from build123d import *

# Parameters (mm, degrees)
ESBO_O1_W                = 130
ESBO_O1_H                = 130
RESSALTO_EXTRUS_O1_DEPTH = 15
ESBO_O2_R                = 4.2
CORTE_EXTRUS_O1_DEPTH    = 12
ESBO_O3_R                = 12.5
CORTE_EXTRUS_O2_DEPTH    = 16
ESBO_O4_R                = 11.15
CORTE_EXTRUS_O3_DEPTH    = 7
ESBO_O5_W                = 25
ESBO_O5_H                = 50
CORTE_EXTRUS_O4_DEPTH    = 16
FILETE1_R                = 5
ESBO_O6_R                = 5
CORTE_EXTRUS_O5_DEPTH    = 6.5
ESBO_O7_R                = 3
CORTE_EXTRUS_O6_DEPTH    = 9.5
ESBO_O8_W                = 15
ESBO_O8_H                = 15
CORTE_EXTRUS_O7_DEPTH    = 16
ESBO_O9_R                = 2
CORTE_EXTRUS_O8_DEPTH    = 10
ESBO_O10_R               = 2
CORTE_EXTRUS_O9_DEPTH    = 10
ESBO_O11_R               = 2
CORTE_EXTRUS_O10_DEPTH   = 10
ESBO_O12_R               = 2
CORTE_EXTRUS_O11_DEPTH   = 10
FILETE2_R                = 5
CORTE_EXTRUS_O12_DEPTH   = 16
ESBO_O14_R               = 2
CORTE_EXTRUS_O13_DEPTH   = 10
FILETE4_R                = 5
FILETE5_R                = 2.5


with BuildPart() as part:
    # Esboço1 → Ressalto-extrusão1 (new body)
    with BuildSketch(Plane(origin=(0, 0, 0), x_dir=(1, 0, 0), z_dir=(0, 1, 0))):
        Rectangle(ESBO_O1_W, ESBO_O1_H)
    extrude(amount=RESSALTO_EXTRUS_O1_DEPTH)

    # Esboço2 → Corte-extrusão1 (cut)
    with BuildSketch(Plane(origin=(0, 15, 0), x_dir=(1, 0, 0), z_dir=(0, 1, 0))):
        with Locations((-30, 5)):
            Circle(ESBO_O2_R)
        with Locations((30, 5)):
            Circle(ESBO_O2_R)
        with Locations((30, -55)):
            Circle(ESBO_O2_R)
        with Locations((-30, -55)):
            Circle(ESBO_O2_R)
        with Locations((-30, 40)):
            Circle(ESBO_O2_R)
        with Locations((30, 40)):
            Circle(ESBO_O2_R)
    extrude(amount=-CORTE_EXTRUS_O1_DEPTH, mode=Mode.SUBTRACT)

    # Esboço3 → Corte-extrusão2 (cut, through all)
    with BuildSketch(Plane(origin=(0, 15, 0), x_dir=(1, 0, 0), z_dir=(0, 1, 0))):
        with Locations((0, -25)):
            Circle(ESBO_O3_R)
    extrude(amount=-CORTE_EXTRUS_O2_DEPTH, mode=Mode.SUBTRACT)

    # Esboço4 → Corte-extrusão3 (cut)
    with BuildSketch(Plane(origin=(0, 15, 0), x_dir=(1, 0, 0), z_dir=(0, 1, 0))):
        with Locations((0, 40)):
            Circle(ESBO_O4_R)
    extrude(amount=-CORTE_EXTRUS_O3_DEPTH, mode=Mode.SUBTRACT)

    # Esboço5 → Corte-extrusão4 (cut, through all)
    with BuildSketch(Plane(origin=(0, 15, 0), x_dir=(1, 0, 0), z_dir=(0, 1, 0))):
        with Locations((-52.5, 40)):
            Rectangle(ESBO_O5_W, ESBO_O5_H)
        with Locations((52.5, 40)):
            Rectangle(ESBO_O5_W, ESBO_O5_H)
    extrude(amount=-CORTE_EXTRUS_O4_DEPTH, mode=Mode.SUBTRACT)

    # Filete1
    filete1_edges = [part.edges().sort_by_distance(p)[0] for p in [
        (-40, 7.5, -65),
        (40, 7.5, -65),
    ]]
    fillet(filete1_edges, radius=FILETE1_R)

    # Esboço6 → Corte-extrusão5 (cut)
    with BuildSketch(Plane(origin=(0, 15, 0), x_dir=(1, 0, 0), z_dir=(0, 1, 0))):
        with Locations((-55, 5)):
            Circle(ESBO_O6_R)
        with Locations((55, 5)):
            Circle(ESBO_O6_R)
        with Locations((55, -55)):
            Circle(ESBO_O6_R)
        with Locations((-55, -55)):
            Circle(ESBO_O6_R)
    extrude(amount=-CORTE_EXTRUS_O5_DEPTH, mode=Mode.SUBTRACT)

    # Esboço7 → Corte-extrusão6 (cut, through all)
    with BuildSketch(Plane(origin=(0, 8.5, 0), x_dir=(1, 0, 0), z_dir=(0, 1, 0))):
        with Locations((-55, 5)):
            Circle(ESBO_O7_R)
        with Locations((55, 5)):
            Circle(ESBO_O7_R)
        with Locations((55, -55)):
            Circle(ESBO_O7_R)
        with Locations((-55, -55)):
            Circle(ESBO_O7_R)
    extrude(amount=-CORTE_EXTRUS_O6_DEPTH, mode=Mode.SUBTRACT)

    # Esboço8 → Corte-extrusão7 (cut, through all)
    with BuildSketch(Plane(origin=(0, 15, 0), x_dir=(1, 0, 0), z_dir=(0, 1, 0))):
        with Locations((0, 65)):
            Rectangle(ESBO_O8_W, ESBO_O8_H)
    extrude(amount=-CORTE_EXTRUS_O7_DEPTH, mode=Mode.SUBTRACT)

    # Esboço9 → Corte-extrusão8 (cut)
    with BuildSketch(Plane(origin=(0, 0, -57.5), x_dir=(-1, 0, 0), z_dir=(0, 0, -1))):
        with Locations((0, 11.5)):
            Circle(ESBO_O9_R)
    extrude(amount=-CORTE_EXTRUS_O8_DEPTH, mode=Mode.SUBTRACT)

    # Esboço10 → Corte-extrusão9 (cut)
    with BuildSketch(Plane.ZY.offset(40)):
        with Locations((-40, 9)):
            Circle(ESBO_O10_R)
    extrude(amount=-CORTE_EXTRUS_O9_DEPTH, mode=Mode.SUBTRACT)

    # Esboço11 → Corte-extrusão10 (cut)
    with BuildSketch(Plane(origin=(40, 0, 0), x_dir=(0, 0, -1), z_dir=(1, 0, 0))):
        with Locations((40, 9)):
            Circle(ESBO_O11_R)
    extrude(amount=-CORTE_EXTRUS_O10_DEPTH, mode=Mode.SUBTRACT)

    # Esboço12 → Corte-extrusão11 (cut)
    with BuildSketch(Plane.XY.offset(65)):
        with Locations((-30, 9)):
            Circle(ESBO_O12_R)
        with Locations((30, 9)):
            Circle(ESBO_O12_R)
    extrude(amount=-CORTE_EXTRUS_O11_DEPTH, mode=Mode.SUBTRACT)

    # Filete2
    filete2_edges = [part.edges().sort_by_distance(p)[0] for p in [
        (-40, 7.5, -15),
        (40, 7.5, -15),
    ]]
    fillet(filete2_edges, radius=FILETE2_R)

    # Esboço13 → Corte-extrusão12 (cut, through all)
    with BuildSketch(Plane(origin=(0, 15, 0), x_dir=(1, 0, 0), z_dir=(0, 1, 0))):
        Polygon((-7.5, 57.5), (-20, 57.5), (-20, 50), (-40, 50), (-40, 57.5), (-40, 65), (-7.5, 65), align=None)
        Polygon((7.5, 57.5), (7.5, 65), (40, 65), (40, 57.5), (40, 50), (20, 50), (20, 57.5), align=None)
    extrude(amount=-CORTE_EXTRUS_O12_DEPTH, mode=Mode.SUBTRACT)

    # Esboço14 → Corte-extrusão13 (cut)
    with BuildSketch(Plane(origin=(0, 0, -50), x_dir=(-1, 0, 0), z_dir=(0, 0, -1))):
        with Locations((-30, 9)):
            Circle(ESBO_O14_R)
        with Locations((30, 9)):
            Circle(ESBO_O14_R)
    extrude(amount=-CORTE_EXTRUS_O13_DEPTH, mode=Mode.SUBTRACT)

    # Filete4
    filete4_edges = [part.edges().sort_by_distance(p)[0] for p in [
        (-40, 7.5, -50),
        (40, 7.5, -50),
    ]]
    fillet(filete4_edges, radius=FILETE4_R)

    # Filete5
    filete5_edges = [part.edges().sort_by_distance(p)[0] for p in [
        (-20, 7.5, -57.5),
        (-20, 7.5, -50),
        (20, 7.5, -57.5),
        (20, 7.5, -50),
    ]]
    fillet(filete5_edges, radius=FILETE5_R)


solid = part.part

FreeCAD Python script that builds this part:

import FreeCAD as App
import Part
import Sketcher
Q = App.Units.Quantity


def edges_at(feature, points):
    """Names of the edges that pass closest to the given points."""
    edges = feature.Shape.Edges
    near = lambda p: min(range(len(edges)), key=lambda i: edges[i].distToShape(Part.Vertex(*p))[0])
    return sorted({f"Edge{near(p) + 1}" for p in points})


def add_polygon(sketch, points):
    """Adds a closed chain of lines whose ends are joined by coincident constraints."""
    first, n = sketch.GeometryCount, len(points)
    for a, b in zip(points, points[1:] + points[:1]):
        sketch.addGeometry(Part.LineSegment(App.Vector(*a, 0), App.Vector(*b, 0)), False)
    for i in range(n):
        sketch.addConstraint(Sketcher.Constraint("Coincident", first + i, 2, first + (i + 1) % n, 1))

doc = App.newDocument("Part")
body = doc.addObject("PartDesign::Body", "Body")

sketch1 = doc.addObject("Sketcher::SketchObject", "Sketch")
body.addObject(sketch1)
sketch1.AttachmentSupport = (doc.XZ_Plane, [""])
sketch1.MapMode = "FlatFace"
add_polygon(sketch1, [(-65, -65), (-65, 65), (65, 65), (65, -65)])
sketch1.addConstraint(Sketcher.Constraint("Vertical", 0))
sketch1.addConstraint(Sketcher.Constraint("Horizontal", 1))
sketch1.addConstraint(Sketcher.Constraint("Vertical", 2))
sketch1.addConstraint(Sketcher.Constraint("Horizontal", 3))
sketch1.addConstraint(Sketcher.Constraint("Symmetric", 0, 2, 2, 2, -1, 1))
sketch1.addConstraint(Sketcher.Constraint("Equal", 3, 0))
sketch1.addConstraint(Sketcher.Constraint("DistanceX", 1, 1, 1, 2, Q("130 mm")))
pad1 = doc.addObject("PartDesign::Pad", "Pad")
body.addObject(pad1)
pad1.Profile = sketch1
pad1.Length = 15
pad1.Reversed = True

sketch2 = doc.addObject("Sketcher::SketchObject", "Sketch001")
body.addObject(sketch2)
sketch2.AttachmentSupport = (doc.XZ_Plane, [""])
sketch2.MapMode = "FlatFace"
sketch2.AttachmentOffset = App.Placement(App.Vector(0, 0, -15), App.Rotation())
sketch2.addGeometry(Part.Circle(App.Vector(-30, -5, 0), App.Vector(0, 0, 1), 4.2), False)
sketch2.addGeometry(Part.Circle(App.Vector(30, -5, 0), App.Vector(0, 0, 1), 4.2), False)
sketch2.addGeometry(Part.Circle(App.Vector(30, 55, 0), App.Vector(0, 0, 1), 4.2), False)
sketch2.addGeometry(Part.Circle(App.Vector(-30, 55, 0), App.Vector(0, 0, 1), 4.2), False)
sketch2.addGeometry(Part.Circle(App.Vector(-30, -40, 0), App.Vector(0, 0, 1), 4.2), False)
sketch2.addGeometry(Part.Circle(App.Vector(30, -40, 0), App.Vector(0, 0, 1), 4.2), False)
sketch2.addConstraint(Sketcher.Constraint("Equal", 0, 1))
sketch2.addConstraint(Sketcher.Constraint("Equal", 1, 2))
sketch2.addConstraint(Sketcher.Constraint("Equal", 2, 3))
sketch2.addConstraint(Sketcher.Constraint("Equal", 3, 4))
sketch2.addConstraint(Sketcher.Constraint("Equal", 4, 5))
sketch2.addConstraint(Sketcher.Constraint("Symmetric", 0, 3, 1, 3, -2))
sketch2.addConstraint(Sketcher.Constraint("Symmetric", 2, 3, 3, 3, -2))
sketch2.addConstraint(Sketcher.Constraint("Symmetric", 4, 3, 5, 3, -2))
sketch2.addConstraint(Sketcher.Constraint("Vertical", 1, 3, 2, 3))
sketch2.addConstraint(Sketcher.Constraint("Vertical", 3, 3, 4, 3))
sketch2.addConstraint(Sketcher.Constraint("Diameter", 0, Q("8.4 mm")))
sketch2.addConstraint(Sketcher.Constraint("DistanceX", 0, 3, -1, 1, Q("30 mm")))
sketch2.addConstraint(Sketcher.Constraint("DistanceY", 0, 3, -1, 1, Q("5 mm")))
sketch2.addConstraint(Sketcher.Constraint("DistanceY", -1, 1, 2, 3, Q("55 mm")))
sketch2.addConstraint(Sketcher.Constraint("DistanceY", 4, 3, -1, 1, Q("40 mm")))
pocket1 = doc.addObject("PartDesign::Pocket", "Pocket")
body.addObject(pocket1)
pocket1.Profile = sketch2
pocket1.Length = 12
pocket1.Reversed = True

sketch3 = doc.addObject("Sketcher::SketchObject", "Sketch002")
body.addObject(sketch3)
sketch3.AttachmentSupport = (doc.XZ_Plane, [""])
sketch3.MapMode = "FlatFace"
sketch3.AttachmentOffset = App.Placement(App.Vector(0, 0, -15), App.Rotation())
sketch3.addGeometry(Part.Circle(App.Vector(0, 25, 0), App.Vector(0, 0, 1), 12.5), False)
sketch3.addConstraint(Sketcher.Constraint("PointOnObject", 0, 3, -2))
sketch3.addConstraint(Sketcher.Constraint("Diameter", 0, Q("25 mm")))
sketch3.addConstraint(Sketcher.Constraint("DistanceY", -1, 1, 0, 3, Q("25 mm")))
pocket2 = doc.addObject("PartDesign::Pocket", "Pocket001")
body.addObject(pocket2)
pocket2.Profile = sketch3
pocket2.Type = "ThroughAll"
pocket2.Reversed = True

sketch4 = doc.addObject("Sketcher::SketchObject", "Sketch003")
body.addObject(sketch4)
sketch4.AttachmentSupport = (doc.XZ_Plane, [""])
sketch4.MapMode = "FlatFace"
sketch4.AttachmentOffset = App.Placement(App.Vector(0, 0, -15), App.Rotation())
sketch4.addGeometry(Part.Circle(App.Vector(0, -40, 0), App.Vector(0, 0, 1), 11.15), False)
sketch4.addConstraint(Sketcher.Constraint("PointOnObject", 0, 3, -2))
sketch4.addConstraint(Sketcher.Constraint("Diameter", 0, Q("22.3 mm")))
sketch4.addConstraint(Sketcher.Constraint("DistanceY", 0, 3, -1, 1, Q("40 mm")))
pocket3 = doc.addObject("PartDesign::Pocket", "Pocket002")
body.addObject(pocket3)
pocket3.Profile = sketch4
pocket3.Length = 7
pocket3.Reversed = True

sketch5 = doc.addObject("Sketcher::SketchObject", "Sketch004")
body.addObject(sketch5)
sketch5.AttachmentSupport = (doc.XZ_Plane, [""])
sketch5.MapMode = "FlatFace"
sketch5.AttachmentOffset = App.Placement(App.Vector(0, 0, -15), App.Rotation())
add_polygon(sketch5, [(-65, -65), (-65, -15), (-40, -15), (-40, -65)])
add_polygon(sketch5, [(40, -65), (40, -15), (65, -15), (65, -65)])
sketch5.addConstraint(Sketcher.Constraint("Vertical", 0))
sketch5.addConstraint(Sketcher.Constraint("Horizontal", 1))
sketch5.addConstraint(Sketcher.Constraint("Vertical", 2))
sketch5.addConstraint(Sketcher.Constraint("Horizontal", 3))
sketch5.addConstraint(Sketcher.Constraint("Vertical", 4))
sketch5.addConstraint(Sketcher.Constraint("Horizontal", 5))
sketch5.addConstraint(Sketcher.Constraint("Vertical", 6))
sketch5.addConstraint(Sketcher.Constraint("Horizontal", 7))
sketch5.addConstraint(Sketcher.Constraint("Symmetric", 1, 2, 4, 2, -2))
sketch5.addConstraint(Sketcher.Constraint("Symmetric", 3, 2, 6, 2, -2))
sketch5.addConstraint(Sketcher.Constraint("DistanceX", 1, 1, 1, 2, Q("25 mm")))
sketch5.addConstraint(Sketcher.Constraint("DistanceY", 0, 1, 0, 2, Q("50 mm")))
sketch5.addConstraint(Sketcher.Constraint("DistanceX", 0, 2, -1, 1, Q("65 mm")))
sketch5.addConstraint(Sketcher.Constraint("DistanceY", 0, 2, -1, 1, Q("15 mm")))
pocket4 = doc.addObject("PartDesign::Pocket", "Pocket003")
body.addObject(pocket4)
pocket4.Profile = sketch5
pocket4.Type = "ThroughAll"
pocket4.Reversed = True
doc.recompute()

fillet = doc.addObject("PartDesign::Fillet", "Fillet")
body.addObject(fillet)
fillet.Base = (pocket4, edges_at(pocket4, [(-40, 7.5, -65), (40, 7.5, -65)]))
fillet.Radius = 5

sketch6 = doc.addObject("Sketcher::SketchObject", "Sketch005")
body.addObject(sketch6)
sketch6.AttachmentSupport = (doc.XZ_Plane, [""])
sketch6.MapMode = "FlatFace"
sketch6.AttachmentOffset = App.Placement(App.Vector(0, 0, -15), App.Rotation())
sketch6.addGeometry(Part.Circle(App.Vector(-55, -5, 0), App.Vector(0, 0, 1), 5), False)
sketch6.addGeometry(Part.Circle(App.Vector(55, -5, 0), App.Vector(0, 0, 1), 5), False)
sketch6.addGeometry(Part.Circle(App.Vector(55, 55, 0), App.Vector(0, 0, 1), 5), False)
sketch6.addGeometry(Part.Circle(App.Vector(-55, 55, 0), App.Vector(0, 0, 1), 5), False)
sketch6.addConstraint(Sketcher.Constraint("Equal", 0, 1))
sketch6.addConstraint(Sketcher.Constraint("Equal", 1, 2))
sketch6.addConstraint(Sketcher.Constraint("Equal", 2, 3))
sketch6.addConstraint(Sketcher.Constraint("Symmetric", 0, 3, 1, 3, -2))
sketch6.addConstraint(Sketcher.Constraint("Symmetric", 2, 3, 3, 3, -2))
sketch6.addConstraint(Sketcher.Constraint("Vertical", 1, 3, 2, 3))
sketch6.addConstraint(Sketcher.Constraint("Diameter", 0, Q("10 mm")))
sketch6.addConstraint(Sketcher.Constraint("DistanceX", 0, 3, -1, 1, Q("55 mm")))
sketch6.addConstraint(Sketcher.Constraint("DistanceY", 0, 3, -1, 1, Q("5 mm")))
sketch6.addConstraint(Sketcher.Constraint("DistanceY", -1, 1, 2, 3, Q("55 mm")))
pocket5 = doc.addObject("PartDesign::Pocket", "Pocket004")
body.addObject(pocket5)
pocket5.Profile = sketch6
pocket5.Length = 6.5
pocket5.Reversed = True

sketch7 = doc.addObject("Sketcher::SketchObject", "Sketch006")
body.addObject(sketch7)
sketch7.AttachmentSupport = (doc.XZ_Plane, [""])
sketch7.MapMode = "FlatFace"
sketch7.AttachmentOffset = App.Placement(App.Vector(0, 0, -8.5), App.Rotation())
sketch7.addGeometry(Part.Circle(App.Vector(-55, -5, 0), App.Vector(0, 0, 1), 3), False)
sketch7.addGeometry(Part.Circle(App.Vector(55, -5, 0), App.Vector(0, 0, 1), 3), False)
sketch7.addGeometry(Part.Circle(App.Vector(55, 55, 0), App.Vector(0, 0, 1), 3), False)
sketch7.addGeometry(Part.Circle(App.Vector(-55, 55, 0), App.Vector(0, 0, 1), 3), False)
sketch7.addConstraint(Sketcher.Constraint("Equal", 0, 1))
sketch7.addConstraint(Sketcher.Constraint("Equal", 1, 2))
sketch7.addConstraint(Sketcher.Constraint("Equal", 2, 3))
sketch7.addConstraint(Sketcher.Constraint("Symmetric", 0, 3, 1, 3, -2))
sketch7.addConstraint(Sketcher.Constraint("Symmetric", 2, 3, 3, 3, -2))
sketch7.addConstraint(Sketcher.Constraint("Vertical", 1, 3, 2, 3))
sketch7.addConstraint(Sketcher.Constraint("Diameter", 0, Q("6 mm")))
sketch7.addConstraint(Sketcher.Constraint("DistanceX", 0, 3, -1, 1, Q("55 mm")))
sketch7.addConstraint(Sketcher.Constraint("DistanceY", 0, 3, -1, 1, Q("5 mm")))
sketch7.addConstraint(Sketcher.Constraint("DistanceY", -1, 1, 2, 3, Q("55 mm")))
pocket6 = doc.addObject("PartDesign::Pocket", "Pocket005")
body.addObject(pocket6)
pocket6.Profile = sketch7
pocket6.Type = "ThroughAll"
pocket6.Reversed = True

sketch8 = doc.addObject("Sketcher::SketchObject", "Sketch007")
body.addObject(sketch8)
sketch8.AttachmentSupport = (doc.XZ_Plane, [""])
sketch8.MapMode = "FlatFace"
sketch8.AttachmentOffset = App.Placement(App.Vector(0, 0, -15), App.Rotation())
add_polygon(sketch8, [(-7.5, -72.5), (-7.5, -57.5), (7.5, -57.5), (7.5, -72.5)])
sketch8.addConstraint(Sketcher.Constraint("Vertical", 0))
sketch8.addConstraint(Sketcher.Constraint("Horizontal", 1))
sketch8.addConstraint(Sketcher.Constraint("Vertical", 2))
sketch8.addConstraint(Sketcher.Constraint("Horizontal", 3))
sketch8.addConstraint(Sketcher.Constraint("Equal", 3, 0))
sketch8.addConstraint(Sketcher.Constraint("DistanceX", 1, 1, 1, 2, Q("15 mm")))
sketch8.addConstraint(Sketcher.Constraint("DistanceX", 0, 2, -1, 1, Q("7.5 mm")))
sketch8.addConstraint(Sketcher.Constraint("DistanceY", 0, 2, -1, 1, Q("57.5 mm")))
pocket7 = doc.addObject("PartDesign::Pocket", "Pocket006")
body.addObject(pocket7)
pocket7.Profile = sketch8
pocket7.Type = "ThroughAll"
pocket7.Reversed = True

sketch9 = doc.addObject("Sketcher::SketchObject", "Sketch008")
body.addObject(sketch9)
sketch9.AttachmentSupport = (doc.XY_Plane, [""])
sketch9.MapMode = "FlatFace"
sketch9.AttachmentOffset = App.Placement(App.Vector(0, 0, -57.5), App.Rotation())
sketch9.addGeometry(Part.Circle(App.Vector(0, 11.5, 0), App.Vector(0, 0, 1), 2), False)
sketch9.addConstraint(Sketcher.Constraint("PointOnObject", 0, 3, -2))
sketch9.addConstraint(Sketcher.Constraint("Diameter", 0, Q("4 mm")))
sketch9.addConstraint(Sketcher.Constraint("DistanceY", -1, 1, 0, 3, Q("11.5 mm")))
pocket8 = doc.addObject("PartDesign::Pocket", "Pocket007")
body.addObject(pocket8)
pocket8.Profile = sketch9
pocket8.Length = 10
pocket8.Reversed = True

sketch10 = doc.addObject("Sketcher::SketchObject", "Sketch009")
body.addObject(sketch10)
sketch10.AttachmentSupport = (doc.YZ_Plane, [""])
sketch10.MapMode = "FlatFace"
sketch10.AttachmentOffset = App.Placement(App.Vector(0, 0, -40), App.Rotation())
sketch10.addGeometry(Part.Circle(App.Vector(9, -40, 0), App.Vector(0, 0, 1), 2), False)
sketch10.addConstraint(Sketcher.Constraint("Diameter", 0, Q("4 mm")))
sketch10.addConstraint(Sketcher.Constraint("DistanceX", -1, 1, 0, 3, Q("9 mm")))
sketch10.addConstraint(Sketcher.Constraint("DistanceY", 0, 3, -1, 1, Q("40 mm")))
pocket9 = doc.addObject("PartDesign::Pocket", "Pocket008")
body.addObject(pocket9)
pocket9.Profile = sketch10
pocket9.Length = 10
pocket9.Reversed = True

sketch11 = doc.addObject("Sketcher::SketchObject", "Sketch010")
body.addObject(sketch11)
sketch11.AttachmentSupport = (doc.YZ_Plane, [""])
sketch11.MapMode = "FlatFace"
sketch11.AttachmentOffset = App.Placement(App.Vector(0, 0, 40), App.Rotation())
sketch11.addGeometry(Part.Circle(App.Vector(9, -40, 0), App.Vector(0, 0, 1), 2), False)
sketch11.addConstraint(Sketcher.Constraint("Diameter", 0, Q("4 mm")))
sketch11.addConstraint(Sketcher.Constraint("DistanceX", -1, 1, 0, 3, Q("9 mm")))
sketch11.addConstraint(Sketcher.Constraint("DistanceY", 0, 3, -1, 1, Q("40 mm")))
pocket10 = doc.addObject("PartDesign::Pocket", "Pocket009")
body.addObject(pocket10)
pocket10.Profile = sketch11
pocket10.Length = 10

sketch12 = doc.addObject("Sketcher::SketchObject", "Sketch011")
body.addObject(sketch12)
sketch12.AttachmentSupport = (doc.XY_Plane, [""])
sketch12.MapMode = "FlatFace"
sketch12.AttachmentOffset = App.Placement(App.Vector(0, 0, 65), App.Rotation())
sketch12.addGeometry(Part.Circle(App.Vector(-30, 9, 0), App.Vector(0, 0, 1), 2), False)
sketch12.addGeometry(Part.Circle(App.Vector(30, 9, 0), App.Vector(0, 0, 1), 2), False)
sketch12.addConstraint(Sketcher.Constraint("Equal", 0, 1))
sketch12.addConstraint(Sketcher.Constraint("Symmetric", 0, 3, 1, 3, -2))
sketch12.addConstraint(Sketcher.Constraint("Diameter", 0, Q("4 mm")))
sketch12.addConstraint(Sketcher.Constraint("DistanceX", 0, 3, -1, 1, Q("30 mm")))
sketch12.addConstraint(Sketcher.Constraint("DistanceY", -1, 1, 0, 3, Q("9 mm")))
pocket11 = doc.addObject("PartDesign::Pocket", "Pocket010")
body.addObject(pocket11)
pocket11.Profile = sketch12
pocket11.Length = 10
doc.recompute()

fillet2 = doc.addObject("PartDesign::Fillet", "Fillet001")
body.addObject(fillet2)
fillet2.Base = (pocket11, edges_at(pocket11, [(-40, 7.5, -15), (40, 7.5, -15)]))
fillet2.Radius = 5

sketch13 = doc.addObject("Sketcher::SketchObject", "Sketch012")
body.addObject(sketch13)
sketch13.AttachmentSupport = (doc.XZ_Plane, [""])
sketch13.MapMode = "FlatFace"
sketch13.AttachmentOffset = App.Placement(App.Vector(0, 0, -15), App.Rotation())
add_polygon(sketch13, [(-20, -57.5), (-7.5, -57.5), (-7.5, -65), (-40, -65), (-40, -50), (-20, -50)])
add_polygon(sketch13, [(7.5, -65), (7.5, -57.5), (20, -57.5), (20, -50), (40, -50), (40, -65)])
sketch13.addConstraint(Sketcher.Constraint("Horizontal", 0))
sketch13.addConstraint(Sketcher.Constraint("Vertical", 1))
sketch13.addConstraint(Sketcher.Constraint("Horizontal", 2))
sketch13.addConstraint(Sketcher.Constraint("Vertical", 3))
sketch13.addConstraint(Sketcher.Constraint("Horizontal", 4))
sketch13.addConstraint(Sketcher.Constraint("Vertical", 5))
sketch13.addConstraint(Sketcher.Constraint("Vertical", 6))
sketch13.addConstraint(Sketcher.Constraint("Horizontal", 7))
sketch13.addConstraint(Sketcher.Constraint("Vertical", 8))
sketch13.addConstraint(Sketcher.Constraint("Horizontal", 9))
sketch13.addConstraint(Sketcher.Constraint("Vertical", 10))
sketch13.addConstraint(Sketcher.Constraint("Horizontal", 11))
sketch13.addConstraint(Sketcher.Constraint("Symmetric", 0, 2, 6, 2, -2))
sketch13.addConstraint(Sketcher.Constraint("Symmetric", 4, 2, 8, 2, -2))
sketch13.addConstraint(Sketcher.Constraint("Symmetric", 2, 2, 10, 2, -2))
sketch13.addConstraint(Sketcher.Constraint("Equal", 1, 5))
sketch13.addConstraint(Sketcher.Constraint("DistanceX", 4, 1, 4, 2, Q("20 mm")))
sketch13.addConstraint(Sketcher.Constraint("DistanceY", 3, 1, 3, 2, Q("15 mm")))
sketch13.addConstraint(Sketcher.Constraint("DistanceX", 0, 1, 0, 2, Q("12.5 mm")))
sketch13.addConstraint(Sketcher.Constraint("DistanceY", 1, 2, -1, 1, Q("65 mm")))
sketch13.addConstraint(Sketcher.Constraint("DistanceX", 2, 2, -1, 1, Q("40 mm")))
pocket12 = doc.addObject("PartDesign::Pocket", "Pocket011")
body.addObject(pocket12)
pocket12.Profile = sketch13
pocket12.Type = "ThroughAll"
pocket12.Reversed = True

sketch14 = doc.addObject("Sketcher::SketchObject", "Sketch013")
body.addObject(sketch14)
sketch14.AttachmentSupport = (doc.XY_Plane, [""])
sketch14.MapMode = "FlatFace"
sketch14.AttachmentOffset = App.Placement(App.Vector(0, 0, -50), App.Rotation())
sketch14.addGeometry(Part.Circle(App.Vector(30, 9, 0), App.Vector(0, 0, 1), 2), False)
sketch14.addGeometry(Part.Circle(App.Vector(-30, 9, 0), App.Vector(0, 0, 1), 2), False)
sketch14.addConstraint(Sketcher.Constraint("Equal", 0, 1))
sketch14.addConstraint(Sketcher.Constraint("Symmetric", 0, 3, 1, 3, -2))
sketch14.addConstraint(Sketcher.Constraint("Diameter", 0, Q("4 mm")))
sketch14.addConstraint(Sketcher.Constraint("DistanceX", -1, 1, 0, 3, Q("30 mm")))
sketch14.addConstraint(Sketcher.Constraint("DistanceY", -1, 1, 0, 3, Q("9 mm")))
pocket13 = doc.addObject("PartDesign::Pocket", "Pocket012")
body.addObject(pocket13)
pocket13.Profile = sketch14
pocket13.Length = 10
pocket13.Reversed = True
doc.recompute()

fillet3 = doc.addObject("PartDesign::Fillet", "Fillet002")
body.addObject(fillet3)
fillet3.Base = (pocket13, edges_at(pocket13, [(-40, 7.5, -50), (40, 7.5, -50)]))
fillet3.Radius = 5
doc.recompute()

fillet4 = doc.addObject("PartDesign::Fillet", "Fillet003")
body.addObject(fillet4)
fillet4.Base = (fillet3, edges_at(fillet3, [
    (-20, 7.5, -57.5),
    (-20, 7.5, -50),
    (20, 7.5, -57.5),
    (20, 7.5, -50),
]))
fillet4.Radius = 2.5

doc.recompute()
